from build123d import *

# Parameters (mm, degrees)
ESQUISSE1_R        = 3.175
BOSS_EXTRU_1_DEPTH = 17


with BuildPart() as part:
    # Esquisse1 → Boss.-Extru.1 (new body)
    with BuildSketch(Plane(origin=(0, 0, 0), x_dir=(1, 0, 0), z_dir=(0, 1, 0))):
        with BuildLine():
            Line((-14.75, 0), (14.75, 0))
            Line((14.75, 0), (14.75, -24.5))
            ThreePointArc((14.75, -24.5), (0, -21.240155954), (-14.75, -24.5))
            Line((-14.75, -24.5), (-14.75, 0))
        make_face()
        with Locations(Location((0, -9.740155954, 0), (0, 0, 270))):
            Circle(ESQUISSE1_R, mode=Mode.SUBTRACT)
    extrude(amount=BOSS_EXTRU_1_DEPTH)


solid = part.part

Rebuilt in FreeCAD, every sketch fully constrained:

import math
import FreeCAD as App
import Part
import Sketcher
from FreeCAD import Vector
Q = App.Units.Quantity

doc = App.newDocument("Part")
params = doc.addObject("Spreadsheet::Sheet", "Params")
for row, (alias, value) in enumerate([
    ("sketch1_radius", "35 mm"),
    ("sketch1_diameter", "6.35 mm"),
    ("sketch1_width", "29.5 mm"),
    ("sketch1_height", "24.5 mm"),
    ("pad1_length", "17 mm"),
], start=1):
    params.set(f"A{row}", alias)
    params.set(f"B{row}", "=" + value)
    params.setAlias(f"B{row}", alias)

body = doc.addObject("PartDesign::Body", "Body")

# Sketch on XZ plane
sketch1 = doc.addObject("Sketcher::SketchObject", "Sketch")
body.addObject(sketch1)
sketch1.AttachmentSupport = (doc.XZ_Plane, [""])
sketch1.MapMode = "FlatFace"
sketch1.addGeometry([
    Part.LineSegment(Vector(14.75, 0, 0), Vector(-14.75, 0, 0)),  # 0
    Part.LineSegment(Vector(-14.75, 0, 0), Vector(-14.75, 24.5, 0)),  # 1
    Part.ArcOfCircle(Part.Circle(Vector(0, 56.240156, 0), Vector(0, 0, 1), 35), math.radians(-114.924812), math.radians(-65.075188)),  # 2
    Part.LineSegment(Vector(14.75, 24.5, 0), Vector(14.75, 0, 0)),  # 3
    Part.Circle(Vector(0, 9.740156, 0), Vector(0, 0, 1), 3.175),  # 4
], False)
sketch1.addConstraint([
    Sketcher.Constraint("Coincident", 0, 2, 1, 1),
    Sketcher.Constraint("Coincident", 1, 2, 2, 1),
    Sketcher.Constraint("Coincident", 2, 2, 3, 1),
    Sketcher.Constraint("Coincident", 3, 2, 0, 1),
    Sketcher.Constraint("Horizontal", 0),
    Sketcher.Constraint("Vertical", 1),
    Sketcher.Constraint("Vertical", 3),
    Sketcher.Constraint("Symmetric", 0, 2, 3, 2, -1, 1),
    Sketcher.Constraint("PointOnObject", 2, 3, -2),
    Sketcher.Constraint("PointOnObject", 4, 3, -2),
    Sketcher.Constraint("Radius", 2, Q("35 mm")),
    Sketcher.Constraint("Diameter", 4, Q("6.35 mm")),
    Sketcher.Constraint("DistanceX", 0, 2, 0, 1, Q("29.5 mm")),
    Sketcher.Constraint("DistanceY", 1, 1, 1, 2, Q("24.5 mm")),
    Sketcher.Constraint("DistanceY", 4, 3, 2, 3, Q("46.5 mm")),
])
sketch1.setExpression("Constraints[10]", "Params.sketch1_radius")
sketch1.setExpression("Constraints[11]", "Params.sketch1_diameter")
sketch1.setExpression("Constraints[12]", "Params.sketch1_width")
sketch1.setExpression("Constraints[13]", "Params.sketch1_height")
pad1 = doc.addObject("PartDesign::Pad", "Pad")
body.addObject(pad1)
pad1.Profile = sketch1
pad1.setExpression("Length", "Params.pad1_length")
pad1.Reversed = True

doc.recompute()
